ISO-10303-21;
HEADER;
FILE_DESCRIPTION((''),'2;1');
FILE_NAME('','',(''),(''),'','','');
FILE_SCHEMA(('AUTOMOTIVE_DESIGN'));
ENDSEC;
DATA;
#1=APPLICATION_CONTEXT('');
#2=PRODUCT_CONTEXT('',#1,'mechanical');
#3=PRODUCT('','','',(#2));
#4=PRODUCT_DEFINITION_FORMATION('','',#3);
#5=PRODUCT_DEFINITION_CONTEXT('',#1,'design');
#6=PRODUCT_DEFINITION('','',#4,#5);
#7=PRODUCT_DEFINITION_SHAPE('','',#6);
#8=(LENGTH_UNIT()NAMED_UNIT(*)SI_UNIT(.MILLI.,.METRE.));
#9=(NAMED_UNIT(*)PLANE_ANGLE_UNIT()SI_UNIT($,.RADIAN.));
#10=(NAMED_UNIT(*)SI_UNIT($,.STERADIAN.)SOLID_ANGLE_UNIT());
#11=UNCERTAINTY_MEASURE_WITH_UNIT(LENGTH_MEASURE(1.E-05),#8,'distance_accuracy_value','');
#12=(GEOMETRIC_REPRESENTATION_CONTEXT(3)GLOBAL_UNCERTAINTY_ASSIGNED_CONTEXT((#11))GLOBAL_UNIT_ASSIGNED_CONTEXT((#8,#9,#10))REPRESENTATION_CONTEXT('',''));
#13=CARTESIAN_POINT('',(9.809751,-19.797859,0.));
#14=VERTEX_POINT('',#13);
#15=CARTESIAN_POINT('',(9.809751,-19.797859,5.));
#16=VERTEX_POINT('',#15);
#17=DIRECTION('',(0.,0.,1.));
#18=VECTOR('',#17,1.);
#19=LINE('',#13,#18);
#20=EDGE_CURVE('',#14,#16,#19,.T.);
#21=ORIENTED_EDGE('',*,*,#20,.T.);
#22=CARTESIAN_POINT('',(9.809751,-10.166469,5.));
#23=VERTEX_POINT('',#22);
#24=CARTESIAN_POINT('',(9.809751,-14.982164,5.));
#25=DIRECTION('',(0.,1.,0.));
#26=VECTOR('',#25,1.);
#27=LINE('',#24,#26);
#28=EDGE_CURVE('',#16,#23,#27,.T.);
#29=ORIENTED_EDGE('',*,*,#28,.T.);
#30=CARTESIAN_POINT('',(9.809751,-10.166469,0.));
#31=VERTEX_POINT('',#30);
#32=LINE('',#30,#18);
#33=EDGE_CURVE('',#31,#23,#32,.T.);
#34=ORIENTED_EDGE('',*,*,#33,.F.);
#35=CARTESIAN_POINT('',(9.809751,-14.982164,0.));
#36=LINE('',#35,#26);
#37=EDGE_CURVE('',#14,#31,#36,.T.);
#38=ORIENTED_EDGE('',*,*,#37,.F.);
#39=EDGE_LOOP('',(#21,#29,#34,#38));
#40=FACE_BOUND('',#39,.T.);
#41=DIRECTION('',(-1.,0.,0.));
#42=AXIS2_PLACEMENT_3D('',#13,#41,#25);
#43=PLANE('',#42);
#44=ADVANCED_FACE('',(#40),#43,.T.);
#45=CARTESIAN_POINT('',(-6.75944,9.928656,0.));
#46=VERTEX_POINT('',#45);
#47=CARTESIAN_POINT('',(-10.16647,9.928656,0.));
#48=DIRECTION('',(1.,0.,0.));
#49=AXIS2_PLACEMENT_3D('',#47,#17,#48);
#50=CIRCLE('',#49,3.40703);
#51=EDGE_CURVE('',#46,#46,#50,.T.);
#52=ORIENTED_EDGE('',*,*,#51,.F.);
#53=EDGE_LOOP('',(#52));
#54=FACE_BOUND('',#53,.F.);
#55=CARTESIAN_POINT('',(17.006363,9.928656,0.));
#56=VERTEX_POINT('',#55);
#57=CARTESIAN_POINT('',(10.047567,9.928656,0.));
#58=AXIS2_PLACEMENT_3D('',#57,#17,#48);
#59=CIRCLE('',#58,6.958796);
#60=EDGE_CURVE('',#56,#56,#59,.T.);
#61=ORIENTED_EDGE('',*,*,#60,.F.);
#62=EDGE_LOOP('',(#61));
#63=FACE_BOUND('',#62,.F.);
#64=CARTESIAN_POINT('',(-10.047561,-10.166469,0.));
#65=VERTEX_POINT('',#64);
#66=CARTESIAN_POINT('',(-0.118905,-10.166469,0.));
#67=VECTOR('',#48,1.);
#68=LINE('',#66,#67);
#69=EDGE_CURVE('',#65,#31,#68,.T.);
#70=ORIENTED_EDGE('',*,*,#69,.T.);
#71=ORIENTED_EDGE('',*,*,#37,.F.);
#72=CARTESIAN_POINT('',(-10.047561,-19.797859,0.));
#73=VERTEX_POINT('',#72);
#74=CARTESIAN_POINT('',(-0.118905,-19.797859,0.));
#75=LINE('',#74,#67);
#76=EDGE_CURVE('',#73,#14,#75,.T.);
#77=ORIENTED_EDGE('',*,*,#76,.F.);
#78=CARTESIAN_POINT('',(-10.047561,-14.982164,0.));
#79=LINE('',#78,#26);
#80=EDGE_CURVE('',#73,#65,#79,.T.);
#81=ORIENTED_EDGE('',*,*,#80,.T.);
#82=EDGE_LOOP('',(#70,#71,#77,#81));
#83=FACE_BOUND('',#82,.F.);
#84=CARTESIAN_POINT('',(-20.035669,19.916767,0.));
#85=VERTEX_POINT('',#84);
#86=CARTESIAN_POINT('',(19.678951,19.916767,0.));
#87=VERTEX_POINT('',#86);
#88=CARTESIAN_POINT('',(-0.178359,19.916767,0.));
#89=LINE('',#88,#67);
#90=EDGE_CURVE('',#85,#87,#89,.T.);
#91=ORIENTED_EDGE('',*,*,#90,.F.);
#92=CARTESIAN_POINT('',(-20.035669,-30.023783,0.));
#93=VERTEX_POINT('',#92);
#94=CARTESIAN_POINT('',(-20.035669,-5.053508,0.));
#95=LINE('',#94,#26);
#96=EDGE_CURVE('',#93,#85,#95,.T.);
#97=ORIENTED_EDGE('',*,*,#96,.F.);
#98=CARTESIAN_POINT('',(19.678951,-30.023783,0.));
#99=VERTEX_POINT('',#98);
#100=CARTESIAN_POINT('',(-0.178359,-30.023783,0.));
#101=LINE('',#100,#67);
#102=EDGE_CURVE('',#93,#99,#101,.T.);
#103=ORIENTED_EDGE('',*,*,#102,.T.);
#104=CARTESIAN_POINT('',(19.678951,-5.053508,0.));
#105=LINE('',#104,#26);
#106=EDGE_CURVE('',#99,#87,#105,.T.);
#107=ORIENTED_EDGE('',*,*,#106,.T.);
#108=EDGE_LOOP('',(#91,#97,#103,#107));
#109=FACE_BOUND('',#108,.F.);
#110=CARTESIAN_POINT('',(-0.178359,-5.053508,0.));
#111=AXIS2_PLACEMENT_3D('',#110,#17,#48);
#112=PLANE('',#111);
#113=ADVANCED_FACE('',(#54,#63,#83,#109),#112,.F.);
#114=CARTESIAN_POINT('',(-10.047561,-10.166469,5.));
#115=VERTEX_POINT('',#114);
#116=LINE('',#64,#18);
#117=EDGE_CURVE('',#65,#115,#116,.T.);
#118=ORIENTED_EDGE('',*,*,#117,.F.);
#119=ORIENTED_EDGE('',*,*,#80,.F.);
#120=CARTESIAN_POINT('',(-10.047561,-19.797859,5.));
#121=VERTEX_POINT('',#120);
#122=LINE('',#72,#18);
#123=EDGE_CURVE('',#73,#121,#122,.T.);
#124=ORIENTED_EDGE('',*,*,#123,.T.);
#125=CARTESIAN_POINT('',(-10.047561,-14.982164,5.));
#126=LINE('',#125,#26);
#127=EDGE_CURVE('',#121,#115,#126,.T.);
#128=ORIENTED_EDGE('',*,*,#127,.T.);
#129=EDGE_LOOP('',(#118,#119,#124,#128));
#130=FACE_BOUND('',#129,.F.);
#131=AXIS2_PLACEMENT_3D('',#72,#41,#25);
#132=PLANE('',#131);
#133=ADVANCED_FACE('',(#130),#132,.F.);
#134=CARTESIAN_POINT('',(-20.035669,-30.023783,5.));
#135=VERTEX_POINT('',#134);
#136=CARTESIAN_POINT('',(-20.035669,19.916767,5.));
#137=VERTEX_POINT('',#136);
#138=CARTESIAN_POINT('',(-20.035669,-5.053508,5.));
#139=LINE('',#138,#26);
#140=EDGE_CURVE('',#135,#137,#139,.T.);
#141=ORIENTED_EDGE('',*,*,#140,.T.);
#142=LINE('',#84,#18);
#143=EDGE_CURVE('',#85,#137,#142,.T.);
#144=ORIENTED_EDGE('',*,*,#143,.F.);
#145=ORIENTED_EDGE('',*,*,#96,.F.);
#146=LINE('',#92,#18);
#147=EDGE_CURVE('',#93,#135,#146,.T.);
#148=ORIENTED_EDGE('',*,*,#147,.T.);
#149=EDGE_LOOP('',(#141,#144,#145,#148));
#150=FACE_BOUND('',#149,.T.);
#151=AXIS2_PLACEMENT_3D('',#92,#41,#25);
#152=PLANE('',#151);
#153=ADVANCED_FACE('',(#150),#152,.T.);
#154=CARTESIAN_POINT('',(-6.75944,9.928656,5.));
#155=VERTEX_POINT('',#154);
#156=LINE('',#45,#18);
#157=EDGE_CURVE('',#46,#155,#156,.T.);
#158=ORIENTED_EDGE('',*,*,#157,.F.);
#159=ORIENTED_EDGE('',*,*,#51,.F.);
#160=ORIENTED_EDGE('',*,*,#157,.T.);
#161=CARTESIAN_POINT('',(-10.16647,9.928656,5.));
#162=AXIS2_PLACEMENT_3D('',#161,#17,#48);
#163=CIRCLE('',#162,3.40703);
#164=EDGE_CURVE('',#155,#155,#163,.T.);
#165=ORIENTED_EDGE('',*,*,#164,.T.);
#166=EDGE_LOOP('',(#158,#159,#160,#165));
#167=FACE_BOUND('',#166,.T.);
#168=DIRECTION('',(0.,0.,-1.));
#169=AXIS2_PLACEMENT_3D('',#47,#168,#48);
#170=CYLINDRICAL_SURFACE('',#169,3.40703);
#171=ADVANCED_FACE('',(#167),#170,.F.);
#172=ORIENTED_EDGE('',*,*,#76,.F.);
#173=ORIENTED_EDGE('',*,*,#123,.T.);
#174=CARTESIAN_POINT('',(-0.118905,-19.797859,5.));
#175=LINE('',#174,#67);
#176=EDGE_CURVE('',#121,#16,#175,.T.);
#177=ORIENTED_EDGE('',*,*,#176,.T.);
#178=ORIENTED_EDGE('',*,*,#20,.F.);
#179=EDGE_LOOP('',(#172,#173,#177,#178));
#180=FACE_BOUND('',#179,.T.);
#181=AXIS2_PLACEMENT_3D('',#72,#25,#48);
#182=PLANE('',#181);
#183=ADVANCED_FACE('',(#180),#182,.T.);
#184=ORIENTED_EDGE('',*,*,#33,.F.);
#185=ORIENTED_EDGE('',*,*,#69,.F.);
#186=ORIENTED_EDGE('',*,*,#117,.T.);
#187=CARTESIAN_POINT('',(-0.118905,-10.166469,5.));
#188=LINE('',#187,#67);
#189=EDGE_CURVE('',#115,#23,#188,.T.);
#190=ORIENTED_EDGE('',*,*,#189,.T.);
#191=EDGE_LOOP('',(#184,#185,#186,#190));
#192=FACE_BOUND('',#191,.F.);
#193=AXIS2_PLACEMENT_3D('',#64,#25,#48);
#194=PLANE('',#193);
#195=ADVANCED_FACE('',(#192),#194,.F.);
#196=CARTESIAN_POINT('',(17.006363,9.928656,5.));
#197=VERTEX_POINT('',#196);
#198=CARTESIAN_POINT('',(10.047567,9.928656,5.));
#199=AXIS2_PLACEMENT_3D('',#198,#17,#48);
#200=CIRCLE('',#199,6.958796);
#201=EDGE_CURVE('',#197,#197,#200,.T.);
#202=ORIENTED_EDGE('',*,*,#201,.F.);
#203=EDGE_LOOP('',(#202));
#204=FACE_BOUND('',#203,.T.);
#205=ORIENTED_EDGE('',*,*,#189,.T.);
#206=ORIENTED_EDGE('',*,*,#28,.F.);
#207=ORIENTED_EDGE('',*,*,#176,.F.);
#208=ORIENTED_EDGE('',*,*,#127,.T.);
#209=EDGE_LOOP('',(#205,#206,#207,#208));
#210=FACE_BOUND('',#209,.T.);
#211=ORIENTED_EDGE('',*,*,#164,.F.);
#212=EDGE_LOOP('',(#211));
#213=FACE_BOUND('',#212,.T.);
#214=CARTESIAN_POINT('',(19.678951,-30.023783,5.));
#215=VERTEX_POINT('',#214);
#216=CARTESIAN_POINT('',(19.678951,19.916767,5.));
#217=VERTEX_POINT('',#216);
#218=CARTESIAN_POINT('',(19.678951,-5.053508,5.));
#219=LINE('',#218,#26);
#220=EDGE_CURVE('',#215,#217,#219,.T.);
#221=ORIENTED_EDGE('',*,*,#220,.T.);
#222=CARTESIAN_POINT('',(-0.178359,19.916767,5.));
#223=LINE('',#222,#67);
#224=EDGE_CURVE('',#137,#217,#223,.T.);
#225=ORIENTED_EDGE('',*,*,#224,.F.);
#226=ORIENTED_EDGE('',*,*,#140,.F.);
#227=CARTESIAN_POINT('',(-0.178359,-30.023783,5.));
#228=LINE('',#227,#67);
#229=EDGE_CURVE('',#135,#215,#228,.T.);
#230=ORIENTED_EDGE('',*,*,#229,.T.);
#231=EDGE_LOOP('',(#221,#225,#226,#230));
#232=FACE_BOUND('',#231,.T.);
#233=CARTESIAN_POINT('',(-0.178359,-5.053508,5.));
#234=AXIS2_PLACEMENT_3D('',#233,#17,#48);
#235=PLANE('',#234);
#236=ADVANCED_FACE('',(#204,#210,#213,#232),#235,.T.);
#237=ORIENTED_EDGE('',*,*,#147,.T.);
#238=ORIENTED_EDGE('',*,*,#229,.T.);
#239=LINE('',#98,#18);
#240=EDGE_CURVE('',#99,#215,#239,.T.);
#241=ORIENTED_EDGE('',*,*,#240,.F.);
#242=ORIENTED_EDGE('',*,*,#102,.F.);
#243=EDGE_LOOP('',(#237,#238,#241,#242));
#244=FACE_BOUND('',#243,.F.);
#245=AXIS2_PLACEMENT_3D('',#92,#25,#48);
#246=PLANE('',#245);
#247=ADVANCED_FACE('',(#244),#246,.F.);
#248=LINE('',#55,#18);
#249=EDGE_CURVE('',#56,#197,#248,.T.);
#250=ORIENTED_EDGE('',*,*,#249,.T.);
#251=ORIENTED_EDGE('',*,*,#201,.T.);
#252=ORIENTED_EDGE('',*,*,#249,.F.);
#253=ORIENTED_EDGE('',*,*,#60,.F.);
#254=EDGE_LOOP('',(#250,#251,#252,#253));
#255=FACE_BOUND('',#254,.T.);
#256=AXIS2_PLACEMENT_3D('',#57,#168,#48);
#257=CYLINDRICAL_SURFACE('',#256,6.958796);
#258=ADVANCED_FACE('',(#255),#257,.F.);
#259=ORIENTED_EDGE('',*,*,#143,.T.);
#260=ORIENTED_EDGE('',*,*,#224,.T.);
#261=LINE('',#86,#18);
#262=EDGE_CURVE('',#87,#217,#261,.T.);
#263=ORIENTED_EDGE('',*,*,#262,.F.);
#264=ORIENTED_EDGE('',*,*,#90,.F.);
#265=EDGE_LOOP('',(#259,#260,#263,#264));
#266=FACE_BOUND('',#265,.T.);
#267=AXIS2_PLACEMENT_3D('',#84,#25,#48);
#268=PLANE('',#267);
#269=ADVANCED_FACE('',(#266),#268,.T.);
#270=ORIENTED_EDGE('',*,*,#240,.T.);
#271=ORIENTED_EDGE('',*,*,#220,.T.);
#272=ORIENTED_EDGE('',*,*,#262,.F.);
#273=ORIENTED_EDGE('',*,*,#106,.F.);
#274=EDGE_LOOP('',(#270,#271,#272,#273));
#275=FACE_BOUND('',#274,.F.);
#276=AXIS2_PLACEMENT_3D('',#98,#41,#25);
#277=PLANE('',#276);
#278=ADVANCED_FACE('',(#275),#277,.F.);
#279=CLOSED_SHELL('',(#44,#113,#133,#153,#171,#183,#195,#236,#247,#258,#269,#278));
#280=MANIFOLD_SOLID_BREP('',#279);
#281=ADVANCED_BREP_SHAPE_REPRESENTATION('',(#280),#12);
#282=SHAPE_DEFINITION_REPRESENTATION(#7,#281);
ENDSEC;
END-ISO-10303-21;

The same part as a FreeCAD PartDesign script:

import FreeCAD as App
import Part
import Sketcher

V = App.Vector

doc = App.newDocument("Part")
params = doc.addObject("Spreadsheet::Sheet", "Params")
for row, (alias, value) in enumerate([
    ("pad1_length", "5 mm"),
], start=1):
    params.set(f"A{row}", alias)
    params.set(f"B{row}", "=" + value)
    params.setAlias(f"B{row}", alias)

body = doc.addObject("PartDesign::Body", "Body")

sketch1 = doc.addObject("Sketcher::SketchObject", "Sketch")
body.addObject(sketch1)
sketch1.AttachmentSupport = (doc.XY_Plane, [""])
sketch1.MapMode = "FlatFace"
sketch1.addGeometry(Part.LineSegment(V(-20, 19.9, 0), V(-20, -30, 0)), False)
sketch1.addGeometry(Part.LineSegment(V(-20, -30, 0), V(19.7, -30, 0)), False)
sketch1.addGeometry(Part.LineSegment(V(19.7, -30, 0), V(19.7, 19.9, 0)), False)
sketch1.addGeometry(Part.LineSegment(V(19.7, 19.9, 0), V(-20, 19.9, 0)), False)
sketch1.addGeometry(Part.LineSegment(V(9.8, -19.8, 0), V(-10, -19.8, 0)), False)
sketch1.addGeometry(Part.LineSegment(V(-10, -19.8, 0), V(-10, -10.2, 0)), False)
sketch1.addGeometry(Part.LineSegment(V(-10, -10.2, 0), V(9.8, -10.2, 0)), False)
sketch1.addGeometry(Part.LineSegment(V(9.8, -10.2, 0), V(9.8, -19.8, 0)), False)
sketch1.addGeometry(Part.Circle(V(-10.2, 9.9, 0), V(0, 0, 1), 3.4), False)
sketch1.addGeometry(Part.Circle(V(10, 9.9, 0), V(0, 0, 1), 7), False)
sketch1.addConstraint(Sketcher.Constraint("Coincident", 0, 2, 1, 1))
sketch1.addConstraint(Sketcher.Constraint("Coincident", 1, 2, 2, 1))
sketch1.addConstraint(Sketcher.Constraint("Coincident", 2, 2, 3, 1))
sketch1.addConstraint(Sketcher.Constraint("Coincident", 3, 2, 0, 1))
sketch1.addConstraint(Sketcher.Constraint("Coincident", 4, 2, 5, 1))
sketch1.addConstraint(Sketcher.Constraint("Coincident", 5, 2, 6, 1))
sketch1.addConstraint(Sketcher.Constraint("Coincident", 6, 2, 7, 1))
sketch1.addConstraint(Sketcher.Constraint("Coincident", 7, 2, 4, 1))
sketch1.addConstraint(Sketcher.Constraint("Vertical", 0))
sketch1.addConstraint(Sketcher.Constraint("Horizontal", 1))
sketch1.addConstraint(Sketcher.Constraint("Vertical", 2))
sketch1.addConstraint(Sketcher.Constraint("Horizontal", 3))
sketch1.addConstraint(Sketcher.Constraint("Horizontal", 4))
sketch1.addConstraint(Sketcher.Constraint("Vertical", 5))
sketch1.addConstraint(Sketcher.Constraint("Horizontal", 6))
sketch1.addConstraint(Sketcher.Constraint("Vertical", 7))
sketch1.addConstraint(Sketcher.Constraint("Horizontal", 8, 3, 9, 3))
sketch1.addConstraint(Sketcher.Constraint("Diameter", 8, 6.81406))
sketch1.addConstraint(Sketcher.Constraint("Diameter", 9, 13.917592))
sketch1.addConstraint(Sketcher.Constraint("DistanceX", 1, 1, 1, 2, 39.71462))
sketch1.addConstraint(Sketcher.Constraint("DistanceY", 0, 2, 0, 1, 49.94055))
sketch1.addConstraint(Sketcher.Constraint("DistanceY", 5, 1, 5, 2, 9.631389))
sketch1.addConstraint(Sketcher.Constraint("DistanceX", 0, 2, 8, 3, 9.869199))
sketch1.addConstraint(Sketcher.Constraint("DistanceX", 6, 2, 1, 2, 9.8692))
sketch1.addConstraint(Sketcher.Constraint("DistanceX", 4, 2, 4, 1, 19.857312))
sketch1.addConstraint(Sketcher.Constraint("DistanceX", 8, 3, -1, 1, 10.16647))
sketch1.addConstraint(Sketcher.Constraint("DistanceY", 4, 2, -1, 1, 19.797859))
sketch1.addConstraint(Sketcher.Constraint("DistanceY", 0, 2, 8, 3, 39.952439))
sketch1.addConstraint(Sketcher.Constraint("DistanceX", 4, 2, 9, 3, 20.095128))
sketch1.addConstraint(Sketcher.Constraint("DistanceY", -1, 1, 8, 3, 9.928656))
pad1 = doc.addObject("PartDesign::Pad", "Pad")
body.addObject(pad1)
pad1.Profile = sketch1
pad1.setExpression("Length", "Params.pad1_length")

doc.recompute()
